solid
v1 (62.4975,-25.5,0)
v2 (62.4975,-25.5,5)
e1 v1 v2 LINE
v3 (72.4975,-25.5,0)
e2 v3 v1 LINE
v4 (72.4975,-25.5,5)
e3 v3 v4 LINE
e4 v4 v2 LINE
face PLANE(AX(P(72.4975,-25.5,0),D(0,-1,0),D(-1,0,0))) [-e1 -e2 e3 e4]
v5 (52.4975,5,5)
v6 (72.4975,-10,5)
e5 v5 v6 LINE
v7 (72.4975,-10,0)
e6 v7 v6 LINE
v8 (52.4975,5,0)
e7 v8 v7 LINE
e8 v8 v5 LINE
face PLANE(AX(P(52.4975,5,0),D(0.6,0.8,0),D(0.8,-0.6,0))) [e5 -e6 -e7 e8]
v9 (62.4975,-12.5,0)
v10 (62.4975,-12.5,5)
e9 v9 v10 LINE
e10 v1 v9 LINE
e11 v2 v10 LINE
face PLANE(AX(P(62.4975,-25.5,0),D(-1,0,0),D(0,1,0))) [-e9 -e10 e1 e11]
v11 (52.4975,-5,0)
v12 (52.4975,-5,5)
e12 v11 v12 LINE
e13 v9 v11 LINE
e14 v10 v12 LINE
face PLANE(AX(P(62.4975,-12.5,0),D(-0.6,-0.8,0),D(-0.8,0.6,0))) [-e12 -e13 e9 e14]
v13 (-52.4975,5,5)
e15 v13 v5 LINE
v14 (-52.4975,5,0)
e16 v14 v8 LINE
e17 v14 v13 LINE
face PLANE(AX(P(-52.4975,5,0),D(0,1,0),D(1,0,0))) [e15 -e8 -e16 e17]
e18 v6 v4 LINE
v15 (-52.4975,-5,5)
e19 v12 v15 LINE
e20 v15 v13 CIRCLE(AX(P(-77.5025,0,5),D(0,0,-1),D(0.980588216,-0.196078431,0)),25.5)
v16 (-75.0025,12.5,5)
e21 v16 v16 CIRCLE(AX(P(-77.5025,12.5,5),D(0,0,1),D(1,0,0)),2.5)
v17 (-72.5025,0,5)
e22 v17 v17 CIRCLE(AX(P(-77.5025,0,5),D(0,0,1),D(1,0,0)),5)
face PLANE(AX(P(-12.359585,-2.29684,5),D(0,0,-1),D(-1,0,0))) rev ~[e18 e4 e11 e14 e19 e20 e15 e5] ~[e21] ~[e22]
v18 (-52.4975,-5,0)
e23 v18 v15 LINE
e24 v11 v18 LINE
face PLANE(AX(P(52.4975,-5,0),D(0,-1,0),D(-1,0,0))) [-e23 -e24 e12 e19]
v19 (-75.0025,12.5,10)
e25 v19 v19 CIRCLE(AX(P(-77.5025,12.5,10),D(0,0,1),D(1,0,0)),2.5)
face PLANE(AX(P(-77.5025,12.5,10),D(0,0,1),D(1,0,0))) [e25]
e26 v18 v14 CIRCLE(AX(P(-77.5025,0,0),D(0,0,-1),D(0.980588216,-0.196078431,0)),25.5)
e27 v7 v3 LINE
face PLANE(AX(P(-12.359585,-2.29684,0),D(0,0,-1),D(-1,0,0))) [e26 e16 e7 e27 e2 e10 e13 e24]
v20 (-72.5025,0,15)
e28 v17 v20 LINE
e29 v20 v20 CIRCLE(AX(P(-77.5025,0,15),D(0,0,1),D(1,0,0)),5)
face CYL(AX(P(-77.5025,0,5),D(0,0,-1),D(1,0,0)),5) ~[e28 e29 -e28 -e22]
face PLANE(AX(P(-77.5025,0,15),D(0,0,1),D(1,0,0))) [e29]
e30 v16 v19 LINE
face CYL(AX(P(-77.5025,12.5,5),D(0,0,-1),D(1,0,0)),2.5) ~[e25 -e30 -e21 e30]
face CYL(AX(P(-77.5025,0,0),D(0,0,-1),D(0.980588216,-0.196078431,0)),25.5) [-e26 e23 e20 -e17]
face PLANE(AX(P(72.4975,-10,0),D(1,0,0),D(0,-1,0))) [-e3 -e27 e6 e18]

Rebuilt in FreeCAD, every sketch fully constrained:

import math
import FreeCAD as App
import Part
import Sketcher

doc = App.newDocument("Part")
params = doc.addObject("Spreadsheet::Sheet", "Params")
for row, (alias, value) in enumerate([
    ("sketch1_radius", "25.5 mm"),
    ("sketch1_width", "10 mm"),
    ("sketch1_height", "13 mm"),
    ("sketch1_length", "25 mm"),
    ("sketch1_height2", "15.5 mm"),
    ("pad1_length", "5 mm"),
    ("sketch2_diameter", "5 mm"),
    ("pad2_length", "5 mm"),
    ("sketch3_diameter", "10 mm"),
    ("pad3_length", "10 mm"),
], start=1):
    params.set(f"A{row}", alias)
    params.set(f"B{row}", "=" + value)
    params.setAlias(f"B{row}", alias)

body = doc.addObject("PartDesign::Body", "Body")

sketch1 = body.newObject("Sketcher::SketchObject", "Sketch")
sketch1.AttachmentSupport = (doc.getObject("XY_Plane"), [""])
sketch1.MapMode = "FlatFace"
sketch1.addGeometry([
    Part.LineSegment(App.Vector(52, 5, 0), App.Vector(-52, 5, 0)),
    Part.ArcOfCircle(Part.Circle(App.Vector(-78, 0, 0), App.Vector(0, 0, 1), 26), math.radians(11), math.radians(349)),
    Part.LineSegment(App.Vector(-52, -5, 0), App.Vector(52, -5, 0)),
    Part.LineSegment(App.Vector(52, -5, 0), App.Vector(62, -12, 0)),
    Part.LineSegment(App.Vector(62, -12, 0), App.Vector(62, -26, 0)),
    Part.LineSegment(App.Vector(62, -26, 0), App.Vector(72, -26, 0)),
    Part.LineSegment(App.Vector(72, -26, 0), App.Vector(72, -10, 0)),
    Part.LineSegment(App.Vector(72, -10, 0), App.Vector(52, 5, 0)),
], False)
sketch1.addConstraint([
    Sketcher.Constraint("Coincident", 0, 2, 1, 1),
    Sketcher.Constraint("Coincident", 1, 2, 2, 1),
    Sketcher.Constraint("Coincident", 2, 2, 3, 1),
    Sketcher.Constraint("Coincident", 3, 2, 4, 1),
    Sketcher.Constraint("Coincident", 4, 2, 5, 1),
    Sketcher.Constraint("Coincident", 5, 2, 6, 1),
    Sketcher.Constraint("Coincident", 6, 2, 7, 1),
    Sketcher.Constraint("Coincident", 7, 2, 0, 1),
    Sketcher.Constraint("Horizontal", 0),
    Sketcher.Constraint("Horizontal", 2),
    Sketcher.Constraint("Vertical", 4),
    Sketcher.Constraint("Horizontal", 5),
    Sketcher.Constraint("Vertical", 6),
    Sketcher.Constraint("Symmetric", 0, 2, 2, 2, -1, 1),
    Sketcher.Constraint("PointOnObject", 1, 3, -1),
    Sketcher.Constraint("Parallel", 3, 7),
    Sketcher.Constraint("Vertical", 2, 2, 7, 2),
    Sketcher.Constraint("Radius", 1, 25.5),
    Sketcher.Constraint("DistanceX", 5, 1, 5, 2, 10.0),
    Sketcher.Constraint("DistanceY", 4, 2, 4, 1, 13.0),
    Sketcher.Constraint("Distance", 7, 25.0),
    Sketcher.Constraint("DistanceY", 6, 1, 6, 2, 15.5),
    Sketcher.Constraint("DistanceY", -1, 1, 0, 2, 5.0),
    Sketcher.Constraint("DistanceX", 1, 3, 2, 2, 130.0),
])
sketch1.setExpression("Constraints[17]", "Params.sketch1_radius")
sketch1.setExpression("Constraints[18]", "Params.sketch1_width")
sketch1.setExpression("Constraints[19]", "Params.sketch1_height")
sketch1.setExpression("Constraints[20]", "Params.sketch1_length")
sketch1.setExpression("Constraints[21]", "Params.sketch1_height2")
pad1 = body.newObject("PartDesign::Pad", "Pad")
pad1.Profile = sketch1
pad1.setExpression("Length", "Params.pad1_length")

sketch2 = body.newObject("Sketcher::SketchObject", "Sketch001")
sketch2.AttachmentSupport = (doc.getObject("XY_Plane"), [""])
sketch2.MapMode = "FlatFace"
sketch2.AttachmentOffset = App.Placement(App.Vector(0, 0, 5), App.Rotation())
sketch2.addGeometry(Part.Circle(App.Vector(-77.5, 12.5, 0), App.Vector(0, 0, 1), 2.5), False)
sketch2.addConstraint([
    Sketcher.Constraint("Diameter", 0, 5.0),
    Sketcher.Constraint("DistanceY", -1, 1, 0, 3, 12.5),
    Sketcher.Constraint("DistanceX", 0, 3, -1, 1, 77.5025),
])
sketch2.setExpression("Constraints[0]", "Params.sketch2_diameter")
pad2 = body.newObject("PartDesign::Pad", "Pad001")
pad2.Profile = sketch2
pad2.setExpression("Length", "Params.pad2_length")

sketch3 = body.newObject("Sketcher::SketchObject", "Sketch002")
sketch3.AttachmentSupport = (doc.getObject("XY_Plane"), [""])
sketch3.MapMode = "FlatFace"
sketch3.AttachmentOffset = App.Placement(App.Vector(0, 0, 5), App.Rotation())
sketch3.addGeometry(Part.Circle(App.Vector(-78, 0, 0), App.Vector(0, 0, 1), 5), False)
sketch3.addConstraint([
    Sketcher.Constraint("PointOnObject", 0, 3, -1),
    Sketcher.Constraint("Diameter", 0, 10.0),
    Sketcher.Constraint("DistanceX", 0, 3, -1, 1, 77.5025),
])
sketch3.setExpression("Constraints[1]", "Params.sketch3_diameter")
pad3 = body.newObject("PartDesign::Pad", "Pad002")
pad3.Profile = sketch3
pad3.setExpression("Length", "Params.pad3_length")

doc.recompute()
